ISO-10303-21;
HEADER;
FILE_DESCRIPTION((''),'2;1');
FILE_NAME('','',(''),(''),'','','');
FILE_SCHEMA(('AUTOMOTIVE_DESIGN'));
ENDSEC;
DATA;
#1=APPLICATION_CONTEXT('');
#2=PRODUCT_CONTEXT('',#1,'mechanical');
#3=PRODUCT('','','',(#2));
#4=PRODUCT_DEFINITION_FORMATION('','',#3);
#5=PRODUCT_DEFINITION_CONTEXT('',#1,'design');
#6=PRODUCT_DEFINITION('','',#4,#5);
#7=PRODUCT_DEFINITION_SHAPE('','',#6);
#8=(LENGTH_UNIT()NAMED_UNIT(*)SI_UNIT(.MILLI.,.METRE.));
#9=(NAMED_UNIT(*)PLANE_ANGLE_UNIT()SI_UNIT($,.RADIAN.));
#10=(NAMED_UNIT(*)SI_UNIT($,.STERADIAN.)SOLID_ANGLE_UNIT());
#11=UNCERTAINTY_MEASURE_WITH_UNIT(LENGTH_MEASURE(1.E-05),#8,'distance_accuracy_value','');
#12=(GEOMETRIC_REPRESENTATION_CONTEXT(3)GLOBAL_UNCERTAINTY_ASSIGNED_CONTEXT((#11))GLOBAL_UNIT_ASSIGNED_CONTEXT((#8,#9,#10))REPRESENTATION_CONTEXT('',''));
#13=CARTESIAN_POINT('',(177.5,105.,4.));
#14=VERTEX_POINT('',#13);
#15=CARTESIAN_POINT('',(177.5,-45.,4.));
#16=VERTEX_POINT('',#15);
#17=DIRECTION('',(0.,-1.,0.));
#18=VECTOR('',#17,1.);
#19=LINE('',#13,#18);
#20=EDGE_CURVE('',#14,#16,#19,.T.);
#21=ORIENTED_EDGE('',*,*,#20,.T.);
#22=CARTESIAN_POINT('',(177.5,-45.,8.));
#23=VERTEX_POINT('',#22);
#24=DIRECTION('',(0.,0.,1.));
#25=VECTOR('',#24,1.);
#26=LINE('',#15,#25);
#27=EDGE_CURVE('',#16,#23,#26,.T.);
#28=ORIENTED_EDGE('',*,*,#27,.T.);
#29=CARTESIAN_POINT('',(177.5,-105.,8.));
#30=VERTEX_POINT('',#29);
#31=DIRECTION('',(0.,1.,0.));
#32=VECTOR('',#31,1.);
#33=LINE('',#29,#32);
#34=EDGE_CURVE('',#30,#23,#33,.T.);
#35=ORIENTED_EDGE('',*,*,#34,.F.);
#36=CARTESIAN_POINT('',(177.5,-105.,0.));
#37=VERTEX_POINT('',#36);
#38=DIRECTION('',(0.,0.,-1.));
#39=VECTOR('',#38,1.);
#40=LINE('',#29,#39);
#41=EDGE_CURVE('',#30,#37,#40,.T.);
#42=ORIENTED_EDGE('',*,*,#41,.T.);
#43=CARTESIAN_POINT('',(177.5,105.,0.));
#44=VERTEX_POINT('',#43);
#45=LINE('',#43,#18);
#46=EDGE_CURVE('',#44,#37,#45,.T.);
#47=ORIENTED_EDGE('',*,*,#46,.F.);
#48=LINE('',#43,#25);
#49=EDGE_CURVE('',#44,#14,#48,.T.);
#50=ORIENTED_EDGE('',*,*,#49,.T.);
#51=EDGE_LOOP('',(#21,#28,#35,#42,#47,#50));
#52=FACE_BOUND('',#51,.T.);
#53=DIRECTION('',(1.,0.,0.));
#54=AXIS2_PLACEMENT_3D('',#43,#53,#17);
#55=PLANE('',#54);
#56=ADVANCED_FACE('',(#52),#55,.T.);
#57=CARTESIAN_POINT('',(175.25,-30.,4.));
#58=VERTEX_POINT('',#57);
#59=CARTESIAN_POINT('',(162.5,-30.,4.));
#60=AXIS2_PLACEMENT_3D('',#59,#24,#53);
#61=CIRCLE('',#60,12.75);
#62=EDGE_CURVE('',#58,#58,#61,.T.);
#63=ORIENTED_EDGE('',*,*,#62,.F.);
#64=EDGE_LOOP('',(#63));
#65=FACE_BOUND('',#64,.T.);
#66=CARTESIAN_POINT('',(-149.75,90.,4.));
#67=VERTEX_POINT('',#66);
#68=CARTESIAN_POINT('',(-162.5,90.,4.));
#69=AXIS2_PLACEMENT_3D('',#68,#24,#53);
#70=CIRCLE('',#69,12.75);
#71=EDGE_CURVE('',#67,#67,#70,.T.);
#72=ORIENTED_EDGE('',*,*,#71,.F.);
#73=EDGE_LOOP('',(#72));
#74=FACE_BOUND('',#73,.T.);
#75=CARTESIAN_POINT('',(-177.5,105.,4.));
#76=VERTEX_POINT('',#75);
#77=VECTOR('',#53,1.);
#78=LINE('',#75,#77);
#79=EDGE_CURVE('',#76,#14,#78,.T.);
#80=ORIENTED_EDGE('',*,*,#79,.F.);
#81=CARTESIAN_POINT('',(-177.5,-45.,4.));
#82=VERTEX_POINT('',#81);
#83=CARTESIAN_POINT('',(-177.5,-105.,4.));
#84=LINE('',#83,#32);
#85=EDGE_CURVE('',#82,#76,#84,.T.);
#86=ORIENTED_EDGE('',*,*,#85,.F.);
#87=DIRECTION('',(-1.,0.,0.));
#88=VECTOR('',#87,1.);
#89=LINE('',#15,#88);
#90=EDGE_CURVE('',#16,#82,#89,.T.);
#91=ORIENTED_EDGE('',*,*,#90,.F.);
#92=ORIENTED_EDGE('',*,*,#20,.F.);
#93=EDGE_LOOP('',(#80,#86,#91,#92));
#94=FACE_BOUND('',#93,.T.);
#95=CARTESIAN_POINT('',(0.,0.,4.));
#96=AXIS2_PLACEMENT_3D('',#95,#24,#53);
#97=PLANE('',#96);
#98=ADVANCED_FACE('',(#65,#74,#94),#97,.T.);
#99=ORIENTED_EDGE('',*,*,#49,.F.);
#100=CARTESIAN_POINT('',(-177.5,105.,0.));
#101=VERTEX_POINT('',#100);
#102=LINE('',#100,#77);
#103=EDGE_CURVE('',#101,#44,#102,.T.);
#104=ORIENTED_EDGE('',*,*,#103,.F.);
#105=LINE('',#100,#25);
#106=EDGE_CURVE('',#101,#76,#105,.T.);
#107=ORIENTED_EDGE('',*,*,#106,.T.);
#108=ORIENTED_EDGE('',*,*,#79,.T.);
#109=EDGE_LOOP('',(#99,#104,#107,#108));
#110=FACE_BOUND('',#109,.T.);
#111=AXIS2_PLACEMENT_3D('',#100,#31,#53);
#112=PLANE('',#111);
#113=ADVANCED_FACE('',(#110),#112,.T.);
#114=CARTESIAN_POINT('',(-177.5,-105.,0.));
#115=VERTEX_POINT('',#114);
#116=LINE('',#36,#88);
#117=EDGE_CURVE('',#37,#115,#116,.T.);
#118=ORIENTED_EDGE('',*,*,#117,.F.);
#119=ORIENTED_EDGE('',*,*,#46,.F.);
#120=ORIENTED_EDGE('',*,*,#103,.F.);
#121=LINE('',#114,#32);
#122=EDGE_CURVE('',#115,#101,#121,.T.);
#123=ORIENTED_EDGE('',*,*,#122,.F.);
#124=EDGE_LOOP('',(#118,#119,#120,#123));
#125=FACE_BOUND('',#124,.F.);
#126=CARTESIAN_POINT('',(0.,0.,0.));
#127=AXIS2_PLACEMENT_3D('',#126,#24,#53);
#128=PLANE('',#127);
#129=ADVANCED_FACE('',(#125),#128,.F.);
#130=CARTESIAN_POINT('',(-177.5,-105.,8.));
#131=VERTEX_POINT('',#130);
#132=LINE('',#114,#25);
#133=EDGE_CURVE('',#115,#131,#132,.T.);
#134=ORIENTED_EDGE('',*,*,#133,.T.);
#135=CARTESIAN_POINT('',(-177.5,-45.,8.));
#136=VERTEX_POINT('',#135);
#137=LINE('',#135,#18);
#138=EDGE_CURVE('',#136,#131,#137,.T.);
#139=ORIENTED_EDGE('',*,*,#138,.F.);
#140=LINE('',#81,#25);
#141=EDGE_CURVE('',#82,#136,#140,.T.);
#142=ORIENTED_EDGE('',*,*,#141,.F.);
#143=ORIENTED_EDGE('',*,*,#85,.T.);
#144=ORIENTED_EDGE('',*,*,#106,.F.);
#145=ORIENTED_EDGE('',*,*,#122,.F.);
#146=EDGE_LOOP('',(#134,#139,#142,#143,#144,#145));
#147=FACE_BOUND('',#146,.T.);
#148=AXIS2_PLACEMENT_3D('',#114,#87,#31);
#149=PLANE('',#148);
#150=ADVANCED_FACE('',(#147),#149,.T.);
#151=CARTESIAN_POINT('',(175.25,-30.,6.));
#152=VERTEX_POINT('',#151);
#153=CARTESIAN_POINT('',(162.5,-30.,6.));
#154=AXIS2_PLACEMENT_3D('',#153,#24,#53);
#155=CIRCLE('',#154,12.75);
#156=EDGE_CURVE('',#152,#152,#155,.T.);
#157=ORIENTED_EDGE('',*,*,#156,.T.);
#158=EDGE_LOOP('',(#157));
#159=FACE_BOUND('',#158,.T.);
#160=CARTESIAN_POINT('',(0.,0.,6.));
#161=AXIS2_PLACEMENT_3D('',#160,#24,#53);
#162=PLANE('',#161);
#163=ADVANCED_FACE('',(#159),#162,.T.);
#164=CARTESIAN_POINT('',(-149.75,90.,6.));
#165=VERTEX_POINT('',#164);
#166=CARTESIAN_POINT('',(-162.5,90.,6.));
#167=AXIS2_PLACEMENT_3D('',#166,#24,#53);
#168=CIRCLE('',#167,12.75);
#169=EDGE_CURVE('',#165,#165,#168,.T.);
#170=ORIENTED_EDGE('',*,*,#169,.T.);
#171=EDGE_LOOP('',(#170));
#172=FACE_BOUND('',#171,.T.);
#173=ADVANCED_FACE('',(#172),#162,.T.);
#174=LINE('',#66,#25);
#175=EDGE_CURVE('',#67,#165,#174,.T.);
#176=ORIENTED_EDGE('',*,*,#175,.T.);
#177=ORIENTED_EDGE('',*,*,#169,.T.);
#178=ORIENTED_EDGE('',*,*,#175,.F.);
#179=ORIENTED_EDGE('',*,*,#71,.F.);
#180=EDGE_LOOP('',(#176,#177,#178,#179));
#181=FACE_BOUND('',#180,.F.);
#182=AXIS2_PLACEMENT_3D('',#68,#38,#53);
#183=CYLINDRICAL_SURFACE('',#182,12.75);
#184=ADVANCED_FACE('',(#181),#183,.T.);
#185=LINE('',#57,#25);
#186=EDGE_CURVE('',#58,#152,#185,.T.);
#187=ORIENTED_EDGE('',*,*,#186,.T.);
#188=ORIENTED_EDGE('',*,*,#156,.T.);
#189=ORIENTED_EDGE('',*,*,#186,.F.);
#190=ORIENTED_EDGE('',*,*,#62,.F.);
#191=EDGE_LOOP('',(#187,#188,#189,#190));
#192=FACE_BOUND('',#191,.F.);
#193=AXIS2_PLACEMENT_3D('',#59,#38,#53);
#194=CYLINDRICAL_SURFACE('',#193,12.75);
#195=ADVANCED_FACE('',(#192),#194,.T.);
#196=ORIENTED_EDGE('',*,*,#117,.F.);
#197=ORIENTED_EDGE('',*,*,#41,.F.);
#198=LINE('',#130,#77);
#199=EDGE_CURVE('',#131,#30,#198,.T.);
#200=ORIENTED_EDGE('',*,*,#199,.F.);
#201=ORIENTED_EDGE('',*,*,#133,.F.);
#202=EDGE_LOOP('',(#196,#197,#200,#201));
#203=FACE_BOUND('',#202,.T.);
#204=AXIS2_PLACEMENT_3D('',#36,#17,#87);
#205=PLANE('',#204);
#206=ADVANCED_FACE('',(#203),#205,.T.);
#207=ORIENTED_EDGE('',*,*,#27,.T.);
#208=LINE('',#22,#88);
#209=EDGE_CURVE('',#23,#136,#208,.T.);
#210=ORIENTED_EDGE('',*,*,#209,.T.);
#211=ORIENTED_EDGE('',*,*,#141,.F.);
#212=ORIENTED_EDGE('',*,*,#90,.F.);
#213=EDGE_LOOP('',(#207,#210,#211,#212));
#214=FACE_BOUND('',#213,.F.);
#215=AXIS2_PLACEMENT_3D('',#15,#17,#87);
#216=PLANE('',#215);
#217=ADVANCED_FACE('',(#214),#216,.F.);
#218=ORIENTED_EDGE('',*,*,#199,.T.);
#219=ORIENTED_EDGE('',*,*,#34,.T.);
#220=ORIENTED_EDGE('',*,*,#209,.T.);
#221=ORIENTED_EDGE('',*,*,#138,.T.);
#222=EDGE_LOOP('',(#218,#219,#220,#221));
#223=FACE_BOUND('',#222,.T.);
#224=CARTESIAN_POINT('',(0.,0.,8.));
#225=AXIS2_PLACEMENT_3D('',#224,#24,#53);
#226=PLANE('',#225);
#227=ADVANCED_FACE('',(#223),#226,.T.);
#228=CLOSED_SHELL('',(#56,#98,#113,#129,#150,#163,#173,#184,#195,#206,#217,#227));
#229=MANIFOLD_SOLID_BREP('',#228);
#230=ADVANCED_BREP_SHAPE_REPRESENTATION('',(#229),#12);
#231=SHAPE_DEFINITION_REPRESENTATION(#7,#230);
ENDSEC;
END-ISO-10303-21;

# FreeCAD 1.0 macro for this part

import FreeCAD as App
import Part
import Sketcher
Q = App.Units.Quantity


def add_polygon(sketch, points):
    """Adds a closed chain of lines whose ends are joined by coincident constraints."""
    first, n = sketch.GeometryCount, len(points)
    for a, b in zip(points, points[1:] + points[:1]):
        sketch.addGeometry(Part.LineSegment(App.Vector(*a, 0), App.Vector(*b, 0)), False)
    for i in range(n):
        sketch.addConstraint(Sketcher.Constraint("Coincident", first + i, 2, first + (i + 1) % n, 1))

doc = App.newDocument("Part")
body = doc.addObject("PartDesign::Body", "Body")

sketch1 = body.newObject("Sketcher::SketchObject", "Sketch")
sketch1.AttachmentSupport = (doc.getObject("XY_Plane"), [""])
sketch1.MapMode = "FlatFace"
add_polygon(sketch1, [(178, 105), (-178, 105), (-178, -105), (178, -105)])
sketch1.addConstraint(Sketcher.Constraint("Horizontal", 0))
sketch1.addConstraint(Sketcher.Constraint("Vertical", 1))
sketch1.addConstraint(Sketcher.Constraint("Horizontal", 2))
sketch1.addConstraint(Sketcher.Constraint("Vertical", 3))
sketch1.addConstraint(Sketcher.Constraint("Symmetric", 0, 2, 2, 2, -1, 1))
sketch1.addConstraint(Sketcher.Constraint("DistanceX", 0, 2, 0, 1, Q("355 mm")))
sketch1.addConstraint(Sketcher.Constraint("DistanceY", 1, 2, 1, 1, Q("210 mm")))
pad1 = body.newObject("PartDesign::Pad", "Pad")
pad1.Profile = sketch1
pad1.Length = 4

sketch2 = body.newObject("Sketcher::SketchObject", "Sketch001")
sketch2.AttachmentSupport = (doc.getObject("XY_Plane"), [""])
sketch2.MapMode = "FlatFace"
sketch2.AttachmentOffset = App.Placement(App.Vector(0, 0, 4), App.Rotation())
add_polygon(sketch2, [(-178, -45), (-178, -105), (178, -105), (178, -45)])
sketch2.addConstraint(Sketcher.Constraint("Vertical", 0))
sketch2.addConstraint(Sketcher.Constraint("Horizontal", 1))
sketch2.addConstraint(Sketcher.Constraint("Vertical", 2))
sketch2.addConstraint(Sketcher.Constraint("Horizontal", 3))
sketch2.addConstraint(Sketcher.Constraint("DistanceY", 0, 2, 0, 1, Q("60 mm")))
sketch2.addConstraint(Sketcher.Constraint("DistanceX", 1, 1, 1, 2, Q("355 mm")))
sketch2.addConstraint(Sketcher.Constraint("DistanceY", 0, 2, -1, 1, Q("105 mm")))
sketch2.addConstraint(Sketcher.Constraint("DistanceX", 0, 2, -1, 1, Q("177.5 mm")))
pad2 = body.newObject("PartDesign::Pad", "Pad001")
pad2.Profile = sketch2
pad2.Length = 4

sketch3 = body.newObject("Sketcher::SketchObject", "Sketch002")
sketch3.AttachmentSupport = (doc.getObject("XY_Plane"), [""])
sketch3.MapMode = "FlatFace"
sketch3.AttachmentOffset = App.Placement(App.Vector(0, 0, 4), App.Rotation())
sketch3.addGeometry(Part.Circle(App.Vector(-162, 90, 0), App.Vector(0, 0, 1), 13), False)
sketch3.addGeometry(Part.Circle(App.Vector(162, -30, 0), App.Vector(0, 0, 1), 13), False)
sketch3.addConstraint(Sketcher.Constraint("Equal", 0, 1))
sketch3.addConstraint(Sketcher.Constraint("Diameter", 0, Q("25.5 mm")))
sketch3.addConstraint(Sketcher.Constraint("DistanceY", 1, 3, -1, 1, Q("30 mm")))
sketch3.addConstraint(Sketcher.Constraint("DistanceY", -1, 1, 0, 3, Q("90 mm")))
sketch3.addConstraint(Sketcher.Constraint("DistanceX", 0, 3, 1, 3, Q("325 mm")))
sketch3.addConstraint(Sketcher.Constraint("DistanceX", 0, 3, -1, 1, Q("162.5 mm")))
pad3 = body.newObject("PartDesign::Pad", "Pad002")
pad3.Profile = sketch3
pad3.Length = 2

doc.recompute()
